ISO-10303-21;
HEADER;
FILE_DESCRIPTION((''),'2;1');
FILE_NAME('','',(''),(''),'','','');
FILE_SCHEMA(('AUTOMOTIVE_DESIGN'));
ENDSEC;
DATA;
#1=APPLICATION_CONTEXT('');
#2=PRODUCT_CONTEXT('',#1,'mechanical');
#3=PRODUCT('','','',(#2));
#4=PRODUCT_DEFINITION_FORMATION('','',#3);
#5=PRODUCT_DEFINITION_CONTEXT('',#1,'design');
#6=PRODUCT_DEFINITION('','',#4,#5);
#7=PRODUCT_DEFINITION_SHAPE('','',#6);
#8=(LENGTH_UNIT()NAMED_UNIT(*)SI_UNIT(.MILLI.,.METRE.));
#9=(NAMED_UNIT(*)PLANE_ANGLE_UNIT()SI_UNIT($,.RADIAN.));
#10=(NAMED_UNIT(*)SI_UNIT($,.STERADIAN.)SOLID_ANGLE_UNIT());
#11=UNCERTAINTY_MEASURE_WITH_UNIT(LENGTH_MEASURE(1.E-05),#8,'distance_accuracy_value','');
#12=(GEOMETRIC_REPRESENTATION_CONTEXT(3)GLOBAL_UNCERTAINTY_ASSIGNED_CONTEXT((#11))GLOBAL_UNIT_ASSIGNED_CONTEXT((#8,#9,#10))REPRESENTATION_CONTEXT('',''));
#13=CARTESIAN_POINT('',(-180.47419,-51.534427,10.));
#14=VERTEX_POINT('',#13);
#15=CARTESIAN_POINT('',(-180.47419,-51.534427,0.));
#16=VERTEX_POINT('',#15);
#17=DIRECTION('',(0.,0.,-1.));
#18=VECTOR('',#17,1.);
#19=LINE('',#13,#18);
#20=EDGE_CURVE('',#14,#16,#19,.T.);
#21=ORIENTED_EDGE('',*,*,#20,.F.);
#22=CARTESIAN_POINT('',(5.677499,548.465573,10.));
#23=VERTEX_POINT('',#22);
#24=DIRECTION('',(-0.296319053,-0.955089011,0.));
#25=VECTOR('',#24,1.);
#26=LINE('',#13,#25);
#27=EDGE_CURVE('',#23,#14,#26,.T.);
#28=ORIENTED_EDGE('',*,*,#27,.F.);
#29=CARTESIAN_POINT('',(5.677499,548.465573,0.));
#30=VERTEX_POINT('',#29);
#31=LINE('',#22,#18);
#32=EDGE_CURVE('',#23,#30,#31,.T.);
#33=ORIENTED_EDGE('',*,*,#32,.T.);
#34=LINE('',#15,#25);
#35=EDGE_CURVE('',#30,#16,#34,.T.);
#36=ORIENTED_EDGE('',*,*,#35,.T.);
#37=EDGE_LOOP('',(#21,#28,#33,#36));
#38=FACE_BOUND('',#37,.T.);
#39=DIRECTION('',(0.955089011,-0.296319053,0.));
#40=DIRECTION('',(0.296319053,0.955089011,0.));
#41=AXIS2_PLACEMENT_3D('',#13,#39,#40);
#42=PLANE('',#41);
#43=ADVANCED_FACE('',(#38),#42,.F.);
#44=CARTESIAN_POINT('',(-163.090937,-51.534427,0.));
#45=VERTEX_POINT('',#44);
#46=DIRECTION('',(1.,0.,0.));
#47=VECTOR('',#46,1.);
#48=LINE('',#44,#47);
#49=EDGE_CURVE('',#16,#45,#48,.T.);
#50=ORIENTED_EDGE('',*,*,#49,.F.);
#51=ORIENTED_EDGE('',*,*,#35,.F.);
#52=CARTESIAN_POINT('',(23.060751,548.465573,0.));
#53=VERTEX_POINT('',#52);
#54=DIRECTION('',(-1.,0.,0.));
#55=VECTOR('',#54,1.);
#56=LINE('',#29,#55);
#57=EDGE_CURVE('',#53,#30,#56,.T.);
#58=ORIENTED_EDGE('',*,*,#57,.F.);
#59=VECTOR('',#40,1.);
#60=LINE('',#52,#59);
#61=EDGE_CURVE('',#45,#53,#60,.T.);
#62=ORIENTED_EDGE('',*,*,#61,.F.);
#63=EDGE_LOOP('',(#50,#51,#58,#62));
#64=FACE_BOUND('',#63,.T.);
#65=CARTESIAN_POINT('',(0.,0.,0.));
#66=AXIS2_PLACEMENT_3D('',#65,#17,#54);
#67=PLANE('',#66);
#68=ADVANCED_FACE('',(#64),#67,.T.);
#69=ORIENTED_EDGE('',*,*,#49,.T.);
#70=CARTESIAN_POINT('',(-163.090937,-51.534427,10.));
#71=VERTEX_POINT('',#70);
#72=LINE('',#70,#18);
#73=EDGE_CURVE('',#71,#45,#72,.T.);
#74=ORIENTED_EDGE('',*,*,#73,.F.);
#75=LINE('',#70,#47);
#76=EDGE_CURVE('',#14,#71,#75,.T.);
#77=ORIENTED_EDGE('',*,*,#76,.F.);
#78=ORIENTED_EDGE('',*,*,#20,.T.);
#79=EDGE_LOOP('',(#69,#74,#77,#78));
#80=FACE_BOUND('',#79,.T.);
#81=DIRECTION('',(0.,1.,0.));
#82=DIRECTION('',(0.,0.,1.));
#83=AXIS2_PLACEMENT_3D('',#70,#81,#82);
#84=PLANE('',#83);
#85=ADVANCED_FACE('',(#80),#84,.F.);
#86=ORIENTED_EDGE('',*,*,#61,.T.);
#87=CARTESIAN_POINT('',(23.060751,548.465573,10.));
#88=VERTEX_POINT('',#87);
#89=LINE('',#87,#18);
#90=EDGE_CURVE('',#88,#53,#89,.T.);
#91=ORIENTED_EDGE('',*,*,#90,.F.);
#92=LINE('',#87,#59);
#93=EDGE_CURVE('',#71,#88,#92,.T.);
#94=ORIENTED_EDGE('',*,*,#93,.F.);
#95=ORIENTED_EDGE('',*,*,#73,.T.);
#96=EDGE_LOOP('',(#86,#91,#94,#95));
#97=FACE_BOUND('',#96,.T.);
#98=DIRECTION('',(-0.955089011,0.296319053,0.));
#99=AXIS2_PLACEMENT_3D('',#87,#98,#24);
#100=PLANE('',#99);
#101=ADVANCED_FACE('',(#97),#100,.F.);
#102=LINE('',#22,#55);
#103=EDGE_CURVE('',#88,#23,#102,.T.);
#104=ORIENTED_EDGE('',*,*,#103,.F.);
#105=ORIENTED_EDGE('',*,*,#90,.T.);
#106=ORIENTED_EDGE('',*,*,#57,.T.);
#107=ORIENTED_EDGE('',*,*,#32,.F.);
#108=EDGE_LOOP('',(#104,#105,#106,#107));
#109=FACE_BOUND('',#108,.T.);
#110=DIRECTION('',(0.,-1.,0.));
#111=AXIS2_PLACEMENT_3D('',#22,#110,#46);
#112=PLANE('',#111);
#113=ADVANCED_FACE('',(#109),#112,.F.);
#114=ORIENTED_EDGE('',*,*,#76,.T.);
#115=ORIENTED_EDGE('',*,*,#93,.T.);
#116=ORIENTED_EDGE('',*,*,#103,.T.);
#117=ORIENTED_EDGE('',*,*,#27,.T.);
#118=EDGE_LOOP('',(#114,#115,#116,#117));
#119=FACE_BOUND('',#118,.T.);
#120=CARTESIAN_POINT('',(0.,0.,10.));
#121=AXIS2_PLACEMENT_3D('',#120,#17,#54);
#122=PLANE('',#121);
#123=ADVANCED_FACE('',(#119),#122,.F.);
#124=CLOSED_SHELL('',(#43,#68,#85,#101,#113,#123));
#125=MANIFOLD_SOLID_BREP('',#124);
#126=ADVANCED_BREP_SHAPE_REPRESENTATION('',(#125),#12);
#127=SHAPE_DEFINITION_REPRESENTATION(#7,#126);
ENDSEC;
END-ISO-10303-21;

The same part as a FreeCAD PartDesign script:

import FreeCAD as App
import Part
import Sketcher

V = App.Vector

doc = App.newDocument("Part")
body = doc.addObject("PartDesign::Body", "Body")

# Sketch on XY plane
sketch1 = body.newObject("Sketcher::SketchObject", "Sketch")
sketch1.AttachmentSupport = (doc.getObject("XY_Plane"), [""])
sketch1.MapMode = "FlatFace"
sketch1.addGeometry(Part.LineSegment(V(23, 548, 0), V(6, 548, 0)), False)
sketch1.addGeometry(Part.LineSegment(V(6, 548, 0), V(-180, -52, 0)), False)
sketch1.addGeometry(Part.LineSegment(V(-180, -52, 0), V(-163, -52, 0)), False)
sketch1.addGeometry(Part.LineSegment(V(-163, -52, 0), V(23, 548, 0)), False)
sketch1.addConstraint(Sketcher.Constraint("Coincident", 0, 2, 1, 1))
sketch1.addConstraint(Sketcher.Constraint("Coincident", 1, 2, 2, 1))
sketch1.addConstraint(Sketcher.Constraint("Coincident", 2, 2, 3, 1))
sketch1.addConstraint(Sketcher.Constraint("Coincident", 3, 2, 0, 1))
sketch1.addConstraint(Sketcher.Constraint("Horizontal", 0))
sketch1.addConstraint(Sketcher.Constraint("Horizontal", 2))
sketch1.addConstraint(Sketcher.Constraint("Parallel", 1, 3))
sketch1.addConstraint(Sketcher.Constraint("DistanceY", 1, 2, 0, 2, 600.0))
sketch1.addConstraint(Sketcher.Constraint("Distance", 1, 628.213699))
sketch1.addConstraint(Sketcher.Constraint("DistanceX", -1, 1, 0, 2, 5.677499))
sketch1.addConstraint(Sketcher.Constraint("DistanceX", 0, 2, 0, 1, 17.383253))
sketch1.addConstraint(Sketcher.Constraint("DistanceY", -1, 1, 0, 2, 548.465573))
pad1 = body.newObject("PartDesign::Pad", "Pad")
pad1.Profile = sketch1
pad1.Length = 10

doc.recompute()
